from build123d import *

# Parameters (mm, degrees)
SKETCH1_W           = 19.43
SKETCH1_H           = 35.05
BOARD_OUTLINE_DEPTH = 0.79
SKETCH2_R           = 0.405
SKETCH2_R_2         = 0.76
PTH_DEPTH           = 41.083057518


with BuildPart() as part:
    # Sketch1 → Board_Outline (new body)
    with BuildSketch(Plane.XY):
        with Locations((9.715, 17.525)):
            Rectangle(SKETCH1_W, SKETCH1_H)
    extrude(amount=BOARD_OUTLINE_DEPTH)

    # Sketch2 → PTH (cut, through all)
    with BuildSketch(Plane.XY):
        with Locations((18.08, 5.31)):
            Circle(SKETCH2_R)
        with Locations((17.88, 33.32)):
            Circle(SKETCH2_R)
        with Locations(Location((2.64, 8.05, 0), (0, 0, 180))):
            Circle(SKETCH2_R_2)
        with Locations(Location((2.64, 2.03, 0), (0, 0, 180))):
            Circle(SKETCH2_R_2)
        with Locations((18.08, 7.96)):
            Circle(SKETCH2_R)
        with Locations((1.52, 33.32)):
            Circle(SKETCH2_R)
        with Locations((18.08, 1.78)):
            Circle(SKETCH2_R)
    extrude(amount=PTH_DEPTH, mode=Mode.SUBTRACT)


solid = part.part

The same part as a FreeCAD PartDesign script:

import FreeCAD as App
import Part
import Sketcher

V = App.Vector

doc = App.newDocument("Part")
body = doc.addObject("PartDesign::Body", "Body")

# Sketch on XY plane
sketch1 = doc.addObject("Sketcher::SketchObject", "Sketch")
body.addObject(sketch1)
sketch1.AttachmentSupport = (doc.XY_Plane, [""])
sketch1.MapMode = "FlatFace"
sketch1.addGeometry(Part.LineSegment(V(0, 35, 0), V(0, 0, 0)), False)
sketch1.addGeometry(Part.LineSegment(V(0, 0, 0), V(19, 0, 0)), False)
sketch1.addGeometry(Part.LineSegment(V(19, 0, 0), V(19, 35, 0)), False)
sketch1.addGeometry(Part.LineSegment(V(19, 35, 0), V(0, 35, 0)), False)
sketch1.addConstraint(Sketcher.Constraint("Coincident", 0, 2, 1, 1))
sketch1.addConstraint(Sketcher.Constraint("Coincident", 1, 2, 2, 1))
sketch1.addConstraint(Sketcher.Constraint("Coincident", 2, 2, 3, 1))
sketch1.addConstraint(Sketcher.Constraint("Coincident", 3, 2, 0, 1))
sketch1.addConstraint(Sketcher.Constraint("Vertical", 0))
sketch1.addConstraint(Sketcher.Constraint("Horizontal", 1))
sketch1.addConstraint(Sketcher.Constraint("Vertical", 2))
sketch1.addConstraint(Sketcher.Constraint("Horizontal", 3))
sketch1.addConstraint(Sketcher.Constraint("Coincident", 0, 2, -1, 1))
sketch1.addConstraint(Sketcher.Constraint("DistanceX", 1, 1, 1, 2, 19.43))
sketch1.addConstraint(Sketcher.Constraint("DistanceY", 0, 2, 0, 1, 35.05))
pad1 = doc.addObject("PartDesign::Pad", "Pad")
body.addObject(pad1)
pad1.Profile = sketch1
pad1.Length = 0.79

# Sketch on XY plane
sketch2 = doc.addObject("Sketcher::SketchObject", "Sketch001")
body.addObject(sketch2)
sketch2.AttachmentSupport = (doc.XY_Plane, [""])
sketch2.MapMode = "FlatFace"
sketch2.addGeometry(Part.Circle(V(18.08, 5.31, 0), V(0, 0, 1), 0.41), False)
sketch2.addGeometry(Part.Circle(V(17.88, 33.32, 0), V(0, 0, 1), 0.41), False)
sketch2.addGeometry(Part.Circle(V(2.64, 8.05, 0), V(0, 0, 1), 0.76), False)
sketch2.addGeometry(Part.Circle(V(2.64, 2.03, 0), V(0, 0, 1), 0.76), False)
sketch2.addGeometry(Part.Circle(V(18.08, 7.96, 0), V(0, 0, 1), 0.41), False)
sketch2.addGeometry(Part.Circle(V(1.52, 33.32, 0), V(0, 0, 1), 0.41), False)
sketch2.addGeometry(Part.Circle(V(18.08, 1.78, 0), V(0, 0, 1), 0.41), False)
sketch2.addConstraint(Sketcher.Constraint("Equal", 0, 1))
sketch2.addConstraint(Sketcher.Constraint("Equal", 2, 3))
sketch2.addConstraint(Sketcher.Constraint("Equal", 1, 4))
sketch2.addConstraint(Sketcher.Constraint("Equal", 4, 5))
sketch2.addConstraint(Sketcher.Constraint("Equal", 5, 6))
sketch2.addConstraint(Sketcher.Constraint("Horizontal", 1, 3, 5, 3))
sketch2.addConstraint(Sketcher.Constraint("Vertical", 2, 3, 3, 3))
sketch2.addConstraint(Sketcher.Constraint("Vertical", 0, 3, 4, 3))
sketch2.addConstraint(Sketcher.Constraint("Vertical", 4, 3, 6, 3))
sketch2.addConstraint(Sketcher.Constraint("Diameter", 0, 0.81))
sketch2.addConstraint(Sketcher.Constraint("Diameter", 2, 1.52))
sketch2.addConstraint(Sketcher.Constraint("DistanceX", 1, 3, 0, 3, 0.2))
sketch2.addConstraint(Sketcher.Constraint("DistanceX", -1, 1, 0, 3, 18.08))
sketch2.addConstraint(Sketcher.Constraint("DistanceY", -1, 1, 0, 3, 5.31))
sketch2.addConstraint(Sketcher.Constraint("DistanceY", -1, 1, 1, 3, 33.32))
sketch2.addConstraint(Sketcher.Constraint("DistanceX", -1, 1, 2, 3, 2.64))
sketch2.addConstraint(Sketcher.Constraint("DistanceY", -1, 1, 2, 3, 8.05))
sketch2.addConstraint(Sketcher.Constraint("DistanceY", -1, 1, 3, 3, 2.03))
sketch2.addConstraint(Sketcher.Constraint("DistanceY", -1, 1, 4, 3, 7.96))
sketch2.addConstraint(Sketcher.Constraint("DistanceX", -1, 1, 5, 3, 1.52))
sketch2.addConstraint(Sketcher.Constraint("DistanceY", -1, 1, 6, 3, 1.78))
pocket1 = doc.addObject("PartDesign::Pocket", "Pocket")
body.addObject(pocket1)
pocket1.Profile = sketch2
pocket1.Type = "ThroughAll"
pocket1.Reversed = True

doc.recompute()
